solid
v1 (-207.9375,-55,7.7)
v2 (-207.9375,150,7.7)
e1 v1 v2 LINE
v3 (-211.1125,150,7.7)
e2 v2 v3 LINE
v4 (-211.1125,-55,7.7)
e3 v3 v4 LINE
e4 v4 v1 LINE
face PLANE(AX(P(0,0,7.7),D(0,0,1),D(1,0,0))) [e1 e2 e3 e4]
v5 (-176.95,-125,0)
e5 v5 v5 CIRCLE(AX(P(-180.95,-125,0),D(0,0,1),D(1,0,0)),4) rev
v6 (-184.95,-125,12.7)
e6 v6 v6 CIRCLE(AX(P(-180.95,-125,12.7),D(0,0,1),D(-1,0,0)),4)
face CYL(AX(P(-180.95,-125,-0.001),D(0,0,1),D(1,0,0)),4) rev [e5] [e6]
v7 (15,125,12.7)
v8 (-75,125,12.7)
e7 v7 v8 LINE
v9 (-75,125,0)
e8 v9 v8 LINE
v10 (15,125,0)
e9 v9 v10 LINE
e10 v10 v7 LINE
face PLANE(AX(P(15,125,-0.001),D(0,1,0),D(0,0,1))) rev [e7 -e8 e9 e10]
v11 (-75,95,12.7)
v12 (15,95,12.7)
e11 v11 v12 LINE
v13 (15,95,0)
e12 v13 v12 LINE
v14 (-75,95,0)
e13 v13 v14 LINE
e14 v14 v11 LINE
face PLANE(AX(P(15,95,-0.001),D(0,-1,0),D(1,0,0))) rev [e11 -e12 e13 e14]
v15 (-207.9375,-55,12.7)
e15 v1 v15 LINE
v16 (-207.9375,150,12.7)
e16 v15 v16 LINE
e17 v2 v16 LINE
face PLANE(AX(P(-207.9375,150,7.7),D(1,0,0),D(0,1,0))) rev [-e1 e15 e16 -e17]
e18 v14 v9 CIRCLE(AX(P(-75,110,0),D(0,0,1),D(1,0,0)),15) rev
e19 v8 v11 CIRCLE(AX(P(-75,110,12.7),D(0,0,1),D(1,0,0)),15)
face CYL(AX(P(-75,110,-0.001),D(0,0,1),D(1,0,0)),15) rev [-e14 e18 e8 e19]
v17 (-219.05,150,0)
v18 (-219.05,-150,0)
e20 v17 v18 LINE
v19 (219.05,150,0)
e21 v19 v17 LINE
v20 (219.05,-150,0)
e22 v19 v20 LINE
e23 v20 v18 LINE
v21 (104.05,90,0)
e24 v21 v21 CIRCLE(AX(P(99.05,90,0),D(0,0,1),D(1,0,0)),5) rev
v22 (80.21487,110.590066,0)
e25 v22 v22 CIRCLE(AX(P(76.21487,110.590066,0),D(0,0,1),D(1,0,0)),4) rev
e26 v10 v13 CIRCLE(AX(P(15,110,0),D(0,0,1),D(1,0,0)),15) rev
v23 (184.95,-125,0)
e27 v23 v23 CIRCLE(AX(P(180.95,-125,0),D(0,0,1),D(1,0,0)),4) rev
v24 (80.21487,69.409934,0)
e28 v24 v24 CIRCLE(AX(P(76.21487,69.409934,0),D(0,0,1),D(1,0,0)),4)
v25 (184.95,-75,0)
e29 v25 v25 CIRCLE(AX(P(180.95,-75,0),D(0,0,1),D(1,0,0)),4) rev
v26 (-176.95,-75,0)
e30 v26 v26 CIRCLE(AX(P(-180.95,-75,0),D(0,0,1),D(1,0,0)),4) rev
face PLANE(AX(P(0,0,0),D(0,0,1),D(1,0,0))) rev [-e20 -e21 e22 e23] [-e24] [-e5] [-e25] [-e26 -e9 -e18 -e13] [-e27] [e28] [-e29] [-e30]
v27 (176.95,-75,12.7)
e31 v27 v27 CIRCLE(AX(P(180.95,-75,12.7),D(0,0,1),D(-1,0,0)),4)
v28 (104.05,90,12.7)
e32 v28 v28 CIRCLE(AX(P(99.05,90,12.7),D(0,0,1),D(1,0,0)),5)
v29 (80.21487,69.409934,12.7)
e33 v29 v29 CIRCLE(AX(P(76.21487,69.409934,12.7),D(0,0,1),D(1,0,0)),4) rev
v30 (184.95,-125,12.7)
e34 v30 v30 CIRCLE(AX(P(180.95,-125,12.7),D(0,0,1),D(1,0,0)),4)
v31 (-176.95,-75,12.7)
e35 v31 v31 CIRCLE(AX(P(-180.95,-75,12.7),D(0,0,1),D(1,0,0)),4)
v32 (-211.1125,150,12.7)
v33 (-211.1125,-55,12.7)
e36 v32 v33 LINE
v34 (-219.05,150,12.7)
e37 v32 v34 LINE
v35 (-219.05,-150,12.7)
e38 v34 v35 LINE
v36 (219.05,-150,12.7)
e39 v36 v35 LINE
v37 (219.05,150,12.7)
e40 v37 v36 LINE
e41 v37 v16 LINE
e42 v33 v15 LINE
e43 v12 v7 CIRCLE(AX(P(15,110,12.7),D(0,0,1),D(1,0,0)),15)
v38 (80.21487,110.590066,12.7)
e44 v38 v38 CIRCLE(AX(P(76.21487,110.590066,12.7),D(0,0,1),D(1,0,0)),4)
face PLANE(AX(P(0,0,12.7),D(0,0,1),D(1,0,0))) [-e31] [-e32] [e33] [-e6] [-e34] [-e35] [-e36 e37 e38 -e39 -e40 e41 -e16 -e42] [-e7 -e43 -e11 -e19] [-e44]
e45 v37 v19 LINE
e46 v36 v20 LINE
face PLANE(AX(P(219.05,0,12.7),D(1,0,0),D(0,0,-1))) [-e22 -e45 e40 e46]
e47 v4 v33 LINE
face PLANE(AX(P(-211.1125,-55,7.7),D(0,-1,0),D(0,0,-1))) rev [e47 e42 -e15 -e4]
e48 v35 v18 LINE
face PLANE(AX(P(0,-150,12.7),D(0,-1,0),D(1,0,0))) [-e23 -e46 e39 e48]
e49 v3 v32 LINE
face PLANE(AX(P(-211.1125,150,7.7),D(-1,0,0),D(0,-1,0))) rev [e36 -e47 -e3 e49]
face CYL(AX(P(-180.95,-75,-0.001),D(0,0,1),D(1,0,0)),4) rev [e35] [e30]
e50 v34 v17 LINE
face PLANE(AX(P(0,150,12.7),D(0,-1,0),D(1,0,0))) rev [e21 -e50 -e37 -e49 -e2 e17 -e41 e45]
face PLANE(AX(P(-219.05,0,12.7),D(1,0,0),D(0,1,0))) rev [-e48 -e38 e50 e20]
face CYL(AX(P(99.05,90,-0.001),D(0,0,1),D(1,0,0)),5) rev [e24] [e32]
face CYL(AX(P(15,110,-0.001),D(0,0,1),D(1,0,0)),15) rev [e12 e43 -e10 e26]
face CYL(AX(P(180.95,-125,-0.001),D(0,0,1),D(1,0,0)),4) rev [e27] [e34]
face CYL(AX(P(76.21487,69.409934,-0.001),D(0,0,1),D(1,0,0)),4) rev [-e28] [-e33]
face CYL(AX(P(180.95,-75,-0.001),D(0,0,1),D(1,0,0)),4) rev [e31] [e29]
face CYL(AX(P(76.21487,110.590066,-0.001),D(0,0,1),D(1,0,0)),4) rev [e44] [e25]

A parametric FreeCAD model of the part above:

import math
import FreeCAD as App
import Part
import Sketcher
from FreeCAD import Vector
Q = App.Units.Quantity

doc = App.newDocument("Part")
body = doc.addObject("PartDesign::Body", "Body")

# Sketch on XY plane
sketch1 = body.newObject("Sketcher::SketchObject", "Sketch")
sketch1.AttachmentSupport = (doc.getObject("XY_Plane"), [""])
sketch1.MapMode = "FlatFace"
sketch1.addGeometry([
    Part.LineSegment(Vector(-219, 150, 0), Vector(-219, -150, 0)),
    Part.LineSegment(Vector(-219, -150, 0), Vector(219, -150, 0)),
    Part.LineSegment(Vector(219, -150, 0), Vector(219, 150, 0)),
    Part.LineSegment(Vector(219, 150, 0), Vector(-219, 150, 0)),
], False)
sketch1.addConstraint([
    Sketcher.Constraint("Coincident", 0, 2, 1, 1),
    Sketcher.Constraint("Coincident", 1, 2, 2, 1),
    Sketcher.Constraint("Coincident", 2, 2, 3, 1),
    Sketcher.Constraint("Coincident", 3, 2, 0, 1),
    Sketcher.Constraint("Vertical", 0),
    Sketcher.Constraint("Horizontal", 1),
    Sketcher.Constraint("Vertical", 2),
    Sketcher.Constraint("Horizontal", 3),
    Sketcher.Constraint("Symmetric", 0, 2, 2, 2, -1, 1),
    Sketcher.Constraint("DistanceY", 0, 2, 0, 1, Q("300 mm")),
    Sketcher.Constraint("DistanceX", 1, 1, 1, 2, Q("438.1 mm")),
])
pad1 = body.newObject("PartDesign::Pad", "Pad")
pad1.Profile = sketch1
pad1.Length = 12.7

# Sketch on XY plane
sketch2 = body.newObject("Sketcher::SketchObject", "Sketch001")
sketch2.AttachmentSupport = (doc.getObject("XY_Plane"), [""])
sketch2.MapMode = "FlatFace"
sketch2.AttachmentOffset = App.Placement(Vector(0, 0, 12.7), App.Rotation())
sketch2.addGeometry(Part.Circle(Vector(76.2, 69.4, 0), Vector(0, 0, 1), 4), False)
sketch2.addConstraint([
    Sketcher.Constraint("Diameter", 0, Q("8 mm")),
    Sketcher.Constraint("DistanceX", -1, 1, 0, 3, Q("76.21487 mm")),
    Sketcher.Constraint("DistanceY", -1, 1, 0, 3, Q("69.409934 mm")),
])
pocket1 = body.newObject("PartDesign::Pocket", "Pocket")
pocket1.Profile = sketch2
pocket1.Type = "UpToFirst"

# Sketch on XY plane
sketch3 = body.newObject("Sketcher::SketchObject", "Sketch002")
sketch3.AttachmentSupport = (doc.getObject("XY_Plane"), [""])
sketch3.MapMode = "FlatFace"
sketch3.AttachmentOffset = App.Placement(Vector(0, 0, 12.7), App.Rotation())
sketch3.addGeometry(Part.Circle(Vector(76.2, 110.6, 0), Vector(0, 0, 1), 4), False)
sketch3.addConstraint([
    Sketcher.Constraint("Diameter", 0, Q("8 mm")),
    Sketcher.Constraint("DistanceX", -1, 1, 0, 3, Q("76.21487 mm")),
    Sketcher.Constraint("DistanceY", -1, 1, 0, 3, Q("110.590066 mm")),
])
pocket2 = body.newObject("PartDesign::Pocket", "Pocket001")
pocket2.Profile = sketch3
pocket2.Type = "UpToFirst"

# Sketch on XY plane
sketch4 = body.newObject("Sketcher::SketchObject", "Sketch003")
sketch4.AttachmentSupport = (doc.getObject("XY_Plane"), [""])
sketch4.MapMode = "FlatFace"
sketch4.AttachmentOffset = App.Placement(Vector(0, 0, 12.7), App.Rotation())
sketch4.addGeometry(Part.Circle(Vector(99, 90, 0), Vector(0, 0, 1), 5), False)
sketch4.addConstraint([
    Sketcher.Constraint("Diameter", 0, Q("10 mm")),
    Sketcher.Constraint("DistanceY", -1, 1, 0, 3, Q("90 mm")),
    Sketcher.Constraint("DistanceX", -1, 1, 0, 3, Q("99.05 mm")),
])
pocket3 = body.newObject("PartDesign::Pocket", "Pocket002")
pocket3.Profile = sketch4
pocket3.Type = "UpToFirst"

# Sketch on XY plane
sketch5 = body.newObject("Sketcher::SketchObject", "Sketch004")
sketch5.AttachmentSupport = (doc.getObject("XY_Plane"), [""])
sketch5.MapMode = "FlatFace"
sketch5.AttachmentOffset = App.Placement(Vector(0, 0, 12.7), App.Rotation())
sketch5.addGeometry([
    Part.LineSegment(Vector(-211.1, 150, 0), Vector(-211.1, -55, 0)),
    Part.LineSegment(Vector(-211.1, -55, 0), Vector(-207.9, -55, 0)),
    Part.LineSegment(Vector(-207.9, -55, 0), Vector(-207.9, 150, 0)),
    Part.LineSegment(Vector(-207.9, 150, 0), Vector(-211.1, 150, 0)),
], False)
sketch5.addConstraint([
    Sketcher.Constraint("Coincident", 0, 2, 1, 1),
    Sketcher.Constraint("Coincident", 1, 2, 2, 1),
    Sketcher.Constraint("Coincident", 2, 2, 3, 1),
    Sketcher.Constraint("Coincident", 3, 2, 0, 1),
    Sketcher.Constraint("Vertical", 0),
    Sketcher.Constraint("Horizontal", 1),
    Sketcher.Constraint("Vertical", 2),
    Sketcher.Constraint("Horizontal", 3),
    Sketcher.Constraint("DistanceY", 0, 2, 0, 1, Q("205 mm")),
    Sketcher.Constraint("DistanceY", 0, 2, -1, 1, Q("55 mm")),
    Sketcher.Constraint("DistanceX", 1, 1, 1, 2, Q("3.175 mm")),
    Sketcher.Constraint("DistanceX", 0, 2, -1, 1, Q("211.1125 mm")),
])
pocket4 = body.newObject("PartDesign::Pocket", "Pocket003")
pocket4.Profile = sketch5
pocket4.Length = 5

# Sketch on XY plane
sketch6 = body.newObject("Sketcher::SketchObject", "Sketch005")
sketch6.AttachmentSupport = (doc.getObject("XY_Plane"), [""])
sketch6.MapMode = "FlatFace"
sketch6.AttachmentOffset = App.Placement(Vector(0, 0, 12.7), App.Rotation())
sketch6.addGeometry(Part.Circle(Vector(-180.9, -75, 0), Vector(0, 0, 1), 4), False)
sketch6.addConstraint([
    Sketcher.Constraint("Diameter", 0, Q("8 mm")),
    Sketcher.Constraint("DistanceY", 0, 3, -1, 1, Q("75 mm")),
    Sketcher.Constraint("DistanceX", 0, 3, -1, 1, Q("180.95 mm")),
])
pocket5 = body.newObject("PartDesign::Pocket", "Pocket004")
pocket5.Profile = sketch6
pocket5.Type = "UpToFirst"

# Sketch on XY plane
sketch7 = body.newObject("Sketcher::SketchObject", "Sketch006")
sketch7.AttachmentSupport = (doc.getObject("XY_Plane"), [""])
sketch7.MapMode = "FlatFace"
sketch7.AttachmentOffset = App.Placement(Vector(0, 0, 12.7), App.Rotation())
sketch7.addGeometry(Part.Circle(Vector(-180.9, -125, 0), Vector(0, 0, 1), 4), False)
sketch7.addConstraint([
    Sketcher.Constraint("Diameter", 0, Q("8 mm")),
    Sketcher.Constraint("DistanceY", 0, 3, -1, 1, Q("125 mm")),
    Sketcher.Constraint("DistanceX", 0, 3, -1, 1, Q("180.95 mm")),
])
pocket6 = body.newObject("PartDesign::Pocket", "Pocket005")
pocket6.Profile = sketch7
pocket6.Type = "UpToFirst"

# Sketch on XY plane
sketch8 = body.newObject("Sketcher::SketchObject", "Sketch007")
sketch8.AttachmentSupport = (doc.getObject("XY_Plane"), [""])
sketch8.MapMode = "FlatFace"
sketch8.AttachmentOffset = App.Placement(Vector(0, 0, 12.7), App.Rotation())
sketch8.addGeometry(Part.Circle(Vector(180.9, -125, 0), Vector(0, 0, 1), 4), False)
sketch8.addConstraint([
    Sketcher.Constraint("Diameter", 0, Q("8 mm")),
    Sketcher.Constraint("DistanceY", 0, 3, -1, 1, Q("125 mm")),
    Sketcher.Constraint("DistanceX", -1, 1, 0, 3, Q("180.95 mm")),
])
pocket7 = body.newObject("PartDesign::Pocket", "Pocket006")
pocket7.Profile = sketch8
pocket7.Type = "UpToFirst"

# Sketch on XY plane
sketch9 = body.newObject("Sketcher::SketchObject", "Sketch008")
sketch9.AttachmentSupport = (doc.getObject("XY_Plane"), [""])
sketch9.MapMode = "FlatFace"
sketch9.AttachmentOffset = App.Placement(Vector(0, 0, 12.7), App.Rotation())
sketch9.addGeometry(Part.Circle(Vector(180.9, -75, 0), Vector(0, 0, 1), 4), False)
sketch9.addConstraint([
    Sketcher.Constraint("Diameter", 0, Q("8 mm")),
    Sketcher.Constraint("DistanceY", 0, 3, -1, 1, Q("75 mm")),
    Sketcher.Constraint("DistanceX", -1, 1, 0, 3, Q("180.95 mm")),
])
pocket8 = body.newObject("PartDesign::Pocket", "Pocket007")
pocket8.Profile = sketch9
pocket8.Type = "UpToFirst"

# Sketch on XY plane
sketch10 = body.newObject("Sketcher::SketchObject", "Sketch009")
sketch10.AttachmentSupport = (doc.getObject("XY_Plane"), [""])
sketch10.MapMode = "FlatFace"
sketch10.AttachmentOffset = App.Placement(Vector(0, 0, 12.7), App.Rotation())
sketch10.addGeometry([
    Part.LineSegment(Vector(-75, 95, 0), Vector(15, 95, 0)),
    Part.ArcOfCircle(Part.Circle(Vector(15, 110, 0), Vector(0, 0, 1), 15), math.radians(-90), math.radians(90)),
    Part.LineSegment(Vector(15, 125, 0), Vector(-75, 125, 0)),
    Part.ArcOfCircle(Part.Circle(Vector(-75, 110, 0), Vector(0, 0, 1), 15), math.radians(90), math.radians(270)),
], False)
sketch10.addConstraint([
    Sketcher.Constraint("Tangent", 0, 2, 1, 1),
    Sketcher.Constraint("Tangent", 1, 2, 2, 1),
    Sketcher.Constraint("Tangent", 2, 2, 3, 1),
    Sketcher.Constraint("Tangent", 3, 2, 0, 1),
    Sketcher.Constraint("Horizontal", 0),
    Sketcher.Constraint("Horizontal", 2),
    Sketcher.Constraint("Radius", 1, Q("15 mm")),
    Sketcher.Constraint("DistanceX", 0, 1, 0, 2, Q("90 mm")),
    Sketcher.Constraint("DistanceX", -1, 1, 1, 3, Q("15 mm")),
    Sketcher.Constraint("DistanceY", -1, 1, 1, 3, Q("110 mm")),
])
pocket9 = body.newObject("PartDesign::Pocket", "Pocket008")
pocket9.Profile = sketch10
pocket9.Type = "UpToFirst"

doc.recompute()
